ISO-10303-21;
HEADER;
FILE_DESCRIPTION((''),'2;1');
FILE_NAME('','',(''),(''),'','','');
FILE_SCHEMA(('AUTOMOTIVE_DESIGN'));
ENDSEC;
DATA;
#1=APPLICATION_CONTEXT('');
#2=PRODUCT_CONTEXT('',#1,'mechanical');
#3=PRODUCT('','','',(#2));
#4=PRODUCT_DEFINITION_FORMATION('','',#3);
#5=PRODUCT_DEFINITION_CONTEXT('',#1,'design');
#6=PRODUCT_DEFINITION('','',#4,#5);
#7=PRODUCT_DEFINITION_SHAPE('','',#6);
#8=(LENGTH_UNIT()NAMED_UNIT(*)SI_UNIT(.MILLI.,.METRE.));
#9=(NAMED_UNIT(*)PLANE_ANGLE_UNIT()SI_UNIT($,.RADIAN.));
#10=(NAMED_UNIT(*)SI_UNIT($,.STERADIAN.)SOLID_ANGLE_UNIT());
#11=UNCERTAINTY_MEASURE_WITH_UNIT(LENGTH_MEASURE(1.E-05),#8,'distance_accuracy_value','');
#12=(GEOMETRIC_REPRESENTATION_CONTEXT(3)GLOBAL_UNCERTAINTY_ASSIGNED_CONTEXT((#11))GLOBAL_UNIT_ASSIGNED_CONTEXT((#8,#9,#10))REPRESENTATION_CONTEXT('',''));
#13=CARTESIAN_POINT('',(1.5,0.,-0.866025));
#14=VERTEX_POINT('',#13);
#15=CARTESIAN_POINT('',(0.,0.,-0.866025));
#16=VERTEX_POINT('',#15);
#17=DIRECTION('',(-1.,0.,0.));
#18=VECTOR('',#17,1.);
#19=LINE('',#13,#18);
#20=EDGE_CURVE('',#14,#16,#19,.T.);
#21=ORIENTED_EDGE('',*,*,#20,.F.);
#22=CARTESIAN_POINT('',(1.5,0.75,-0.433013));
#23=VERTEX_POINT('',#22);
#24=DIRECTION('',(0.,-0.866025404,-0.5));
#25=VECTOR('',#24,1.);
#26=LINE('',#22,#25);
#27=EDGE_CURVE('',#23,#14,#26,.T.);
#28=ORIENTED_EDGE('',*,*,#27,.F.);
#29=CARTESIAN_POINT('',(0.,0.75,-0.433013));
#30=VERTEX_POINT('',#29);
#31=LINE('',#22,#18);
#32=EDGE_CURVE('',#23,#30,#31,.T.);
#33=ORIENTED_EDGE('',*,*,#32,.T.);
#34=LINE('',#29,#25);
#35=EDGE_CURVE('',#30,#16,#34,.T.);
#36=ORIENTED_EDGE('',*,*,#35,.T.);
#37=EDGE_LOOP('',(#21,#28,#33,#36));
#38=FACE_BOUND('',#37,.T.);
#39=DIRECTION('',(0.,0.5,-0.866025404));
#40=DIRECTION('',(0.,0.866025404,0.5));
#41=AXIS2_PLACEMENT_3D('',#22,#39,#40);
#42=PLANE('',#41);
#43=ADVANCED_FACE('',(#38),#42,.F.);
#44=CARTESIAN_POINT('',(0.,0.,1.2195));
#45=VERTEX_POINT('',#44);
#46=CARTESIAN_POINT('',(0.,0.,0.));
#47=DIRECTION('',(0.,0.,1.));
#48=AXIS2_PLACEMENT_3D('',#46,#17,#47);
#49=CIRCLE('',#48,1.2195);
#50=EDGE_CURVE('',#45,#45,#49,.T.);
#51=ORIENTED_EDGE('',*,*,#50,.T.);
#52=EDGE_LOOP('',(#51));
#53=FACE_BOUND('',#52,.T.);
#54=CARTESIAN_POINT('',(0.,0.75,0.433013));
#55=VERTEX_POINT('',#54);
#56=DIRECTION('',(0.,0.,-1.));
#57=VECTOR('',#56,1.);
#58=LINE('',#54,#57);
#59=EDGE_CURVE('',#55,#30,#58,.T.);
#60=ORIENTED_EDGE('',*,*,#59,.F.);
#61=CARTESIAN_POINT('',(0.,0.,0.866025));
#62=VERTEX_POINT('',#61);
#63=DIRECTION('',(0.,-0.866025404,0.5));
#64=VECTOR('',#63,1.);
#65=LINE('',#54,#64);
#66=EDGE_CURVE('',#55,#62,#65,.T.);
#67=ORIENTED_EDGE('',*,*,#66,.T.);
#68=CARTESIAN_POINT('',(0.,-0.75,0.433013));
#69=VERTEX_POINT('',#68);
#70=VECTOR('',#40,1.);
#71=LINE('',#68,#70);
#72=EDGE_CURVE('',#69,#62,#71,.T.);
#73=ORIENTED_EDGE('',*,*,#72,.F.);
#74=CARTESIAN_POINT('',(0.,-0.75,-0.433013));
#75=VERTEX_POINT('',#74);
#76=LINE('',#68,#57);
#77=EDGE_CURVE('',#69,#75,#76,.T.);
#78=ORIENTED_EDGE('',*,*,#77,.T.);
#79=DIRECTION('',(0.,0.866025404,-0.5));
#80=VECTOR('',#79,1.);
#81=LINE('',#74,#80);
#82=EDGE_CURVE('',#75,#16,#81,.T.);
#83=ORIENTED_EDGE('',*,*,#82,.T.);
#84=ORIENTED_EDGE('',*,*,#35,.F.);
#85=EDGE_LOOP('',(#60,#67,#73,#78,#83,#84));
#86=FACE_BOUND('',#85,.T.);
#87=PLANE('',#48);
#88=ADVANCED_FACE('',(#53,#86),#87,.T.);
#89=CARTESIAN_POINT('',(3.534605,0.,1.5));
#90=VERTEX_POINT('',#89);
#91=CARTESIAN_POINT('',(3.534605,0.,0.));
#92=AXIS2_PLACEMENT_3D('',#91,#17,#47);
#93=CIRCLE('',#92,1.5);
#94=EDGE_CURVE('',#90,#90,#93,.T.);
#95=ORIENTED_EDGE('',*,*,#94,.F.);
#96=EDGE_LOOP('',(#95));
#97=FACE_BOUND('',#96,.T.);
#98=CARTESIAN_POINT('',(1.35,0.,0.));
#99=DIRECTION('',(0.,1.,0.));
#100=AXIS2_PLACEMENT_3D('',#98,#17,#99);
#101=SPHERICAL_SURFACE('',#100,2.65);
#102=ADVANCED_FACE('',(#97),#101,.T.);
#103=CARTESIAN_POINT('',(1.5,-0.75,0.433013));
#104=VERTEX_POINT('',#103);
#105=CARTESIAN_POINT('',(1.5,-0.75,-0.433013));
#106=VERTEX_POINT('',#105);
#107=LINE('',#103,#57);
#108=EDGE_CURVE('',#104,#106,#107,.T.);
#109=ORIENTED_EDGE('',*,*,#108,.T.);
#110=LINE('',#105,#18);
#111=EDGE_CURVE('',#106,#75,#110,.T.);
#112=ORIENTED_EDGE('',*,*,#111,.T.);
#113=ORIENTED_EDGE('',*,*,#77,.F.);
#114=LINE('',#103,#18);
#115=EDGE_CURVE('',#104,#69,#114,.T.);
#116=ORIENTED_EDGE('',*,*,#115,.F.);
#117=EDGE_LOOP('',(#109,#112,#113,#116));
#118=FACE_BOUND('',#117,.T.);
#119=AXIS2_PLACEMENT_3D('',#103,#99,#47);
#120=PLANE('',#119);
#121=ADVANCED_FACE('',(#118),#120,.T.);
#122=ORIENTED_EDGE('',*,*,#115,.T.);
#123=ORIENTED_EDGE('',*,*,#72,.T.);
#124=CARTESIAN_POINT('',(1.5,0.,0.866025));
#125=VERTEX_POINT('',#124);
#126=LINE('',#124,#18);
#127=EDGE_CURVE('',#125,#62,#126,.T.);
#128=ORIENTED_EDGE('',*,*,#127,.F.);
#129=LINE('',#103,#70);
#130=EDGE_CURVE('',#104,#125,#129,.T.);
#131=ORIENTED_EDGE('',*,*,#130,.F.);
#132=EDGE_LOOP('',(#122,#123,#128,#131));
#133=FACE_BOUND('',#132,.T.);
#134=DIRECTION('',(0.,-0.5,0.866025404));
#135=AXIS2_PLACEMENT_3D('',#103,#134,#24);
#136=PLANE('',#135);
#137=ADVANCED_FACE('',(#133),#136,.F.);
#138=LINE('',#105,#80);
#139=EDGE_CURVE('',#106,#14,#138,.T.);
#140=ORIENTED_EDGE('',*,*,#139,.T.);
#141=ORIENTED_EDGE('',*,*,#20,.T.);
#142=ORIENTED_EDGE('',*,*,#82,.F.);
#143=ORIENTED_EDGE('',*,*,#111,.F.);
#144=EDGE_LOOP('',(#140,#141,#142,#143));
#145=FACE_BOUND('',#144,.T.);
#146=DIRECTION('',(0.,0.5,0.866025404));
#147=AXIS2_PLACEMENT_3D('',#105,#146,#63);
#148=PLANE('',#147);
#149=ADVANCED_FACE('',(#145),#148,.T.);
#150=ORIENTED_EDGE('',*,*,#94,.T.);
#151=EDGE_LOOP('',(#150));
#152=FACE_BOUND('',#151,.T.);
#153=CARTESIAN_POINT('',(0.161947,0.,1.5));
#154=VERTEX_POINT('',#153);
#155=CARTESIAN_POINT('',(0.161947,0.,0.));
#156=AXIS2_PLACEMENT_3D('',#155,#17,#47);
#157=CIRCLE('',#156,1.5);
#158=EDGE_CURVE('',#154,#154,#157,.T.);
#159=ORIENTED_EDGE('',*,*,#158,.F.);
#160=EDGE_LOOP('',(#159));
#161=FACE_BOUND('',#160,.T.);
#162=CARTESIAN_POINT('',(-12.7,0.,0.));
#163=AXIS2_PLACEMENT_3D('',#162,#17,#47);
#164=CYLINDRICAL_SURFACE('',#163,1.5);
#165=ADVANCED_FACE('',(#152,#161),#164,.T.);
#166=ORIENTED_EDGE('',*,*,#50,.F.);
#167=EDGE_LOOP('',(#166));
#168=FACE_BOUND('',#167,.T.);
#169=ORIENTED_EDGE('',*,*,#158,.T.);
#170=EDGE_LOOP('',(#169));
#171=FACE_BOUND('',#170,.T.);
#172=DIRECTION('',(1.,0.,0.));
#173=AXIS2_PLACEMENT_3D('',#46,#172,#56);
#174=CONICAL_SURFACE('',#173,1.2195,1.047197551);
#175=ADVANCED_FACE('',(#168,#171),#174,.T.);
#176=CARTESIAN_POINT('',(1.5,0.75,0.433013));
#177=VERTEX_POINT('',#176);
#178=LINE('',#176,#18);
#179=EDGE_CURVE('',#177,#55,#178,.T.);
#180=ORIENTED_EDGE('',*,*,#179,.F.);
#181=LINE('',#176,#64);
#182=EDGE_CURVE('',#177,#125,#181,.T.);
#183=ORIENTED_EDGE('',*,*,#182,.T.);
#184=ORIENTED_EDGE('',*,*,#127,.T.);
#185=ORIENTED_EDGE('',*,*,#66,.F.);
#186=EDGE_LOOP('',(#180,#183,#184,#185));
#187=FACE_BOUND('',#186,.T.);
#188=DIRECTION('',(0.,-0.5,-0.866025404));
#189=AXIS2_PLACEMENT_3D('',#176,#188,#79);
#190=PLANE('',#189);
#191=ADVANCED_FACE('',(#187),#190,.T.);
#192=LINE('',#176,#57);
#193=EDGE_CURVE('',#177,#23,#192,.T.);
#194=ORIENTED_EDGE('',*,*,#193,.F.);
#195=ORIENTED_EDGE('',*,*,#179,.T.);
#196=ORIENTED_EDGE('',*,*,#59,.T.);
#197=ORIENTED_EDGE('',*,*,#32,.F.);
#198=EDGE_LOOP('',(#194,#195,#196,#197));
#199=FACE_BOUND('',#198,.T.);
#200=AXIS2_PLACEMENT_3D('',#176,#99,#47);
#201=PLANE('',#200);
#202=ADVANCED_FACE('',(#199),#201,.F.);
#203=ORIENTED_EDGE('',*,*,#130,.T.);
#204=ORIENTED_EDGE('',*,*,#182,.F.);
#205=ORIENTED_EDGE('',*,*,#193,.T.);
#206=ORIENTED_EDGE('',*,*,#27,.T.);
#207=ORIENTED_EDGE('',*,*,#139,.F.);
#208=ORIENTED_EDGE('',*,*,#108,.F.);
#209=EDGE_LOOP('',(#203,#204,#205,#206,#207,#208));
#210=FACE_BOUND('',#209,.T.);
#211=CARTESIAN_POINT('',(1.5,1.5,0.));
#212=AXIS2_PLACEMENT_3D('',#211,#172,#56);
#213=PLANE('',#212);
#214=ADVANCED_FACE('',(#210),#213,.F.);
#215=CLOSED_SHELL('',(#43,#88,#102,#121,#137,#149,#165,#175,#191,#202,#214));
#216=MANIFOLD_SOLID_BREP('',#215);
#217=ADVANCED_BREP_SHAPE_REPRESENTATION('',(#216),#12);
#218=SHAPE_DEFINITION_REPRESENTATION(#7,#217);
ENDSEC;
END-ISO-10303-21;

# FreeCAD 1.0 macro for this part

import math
import FreeCAD as App
import Part
import Sketcher
Q = App.Units.Quantity


def add_polygon(sketch, points):
    """Adds a closed chain of lines whose ends are joined by coincident constraints."""
    first, n = sketch.GeometryCount, len(points)
    for a, b in zip(points, points[1:] + points[:1]):
        sketch.addGeometry(Part.LineSegment(App.Vector(*a, 0), App.Vector(*b, 0)), False)
    for i in range(n):
        sketch.addConstraint(Sketcher.Constraint("Coincident", first + i, 2, first + (i + 1) % n, 1))

doc = App.newDocument("Part")
body = doc.addObject("PartDesign::Body", "Body")

# Sketch on XY plane
sketch1 = body.newObject("Sketcher::SketchObject", "Sketch")
sketch1.AttachmentSupport = (doc.getObject("XY_Plane"), [""])
sketch1.MapMode = "FlatFace"
sketch1.addGeometry([
    Part.LineSegment(App.Vector(0, 1.22, 0), App.Vector(0, 0, 0)),  # 0
    Part.LineSegment(App.Vector(0, 0, 0), App.Vector(4, 0, 0)),  # 1
    Part.ArcOfCircle(Part.Circle(App.Vector(1.35, 0, 0), App.Vector(0, 0, 1), 2.65), math.radians(0), math.radians(34)),  # 2
    Part.LineSegment(App.Vector(3.53, 1.5, 0), App.Vector(0.16, 1.5, 0)),  # 3
    Part.LineSegment(App.Vector(0.16, 1.5, 0), App.Vector(0, 1.22, 0)),  # 4
], False)
sketch1.addConstraint([
    Sketcher.Constraint("Coincident", 0, 2, 1, 1),
    Sketcher.Constraint("Coincident", 1, 2, 2, 1),
    Sketcher.Constraint("Coincident", 2, 2, 3, 1),
    Sketcher.Constraint("Coincident", 3, 2, 4, 1),
    Sketcher.Constraint("Coincident", 4, 2, 0, 1),
    Sketcher.Constraint("Vertical", 0),
    Sketcher.Constraint("Horizontal", 1),
    Sketcher.Constraint("Horizontal", 3),
    Sketcher.Constraint("Coincident", 0, 2, -1, 1),
    Sketcher.Constraint("PointOnObject", 2, 3, -1),
    Sketcher.Constraint("DistanceX", 1, 1, 1, 2, Q("4 mm")),
    Sketcher.Constraint("Angle", 4, Q("-120 deg")),
    Sketcher.Constraint("Radius", 2, Q("2.65 mm")),
    Sketcher.Constraint("DistanceY", -1, 1, 2, 2, Q("1.5 mm")),
    Sketcher.Constraint("DistanceY", 0, 2, 0, 1, Q("1.2195 mm")),
])
revolution = body.newObject("PartDesign::Revolution", "Revolution")
revolution.Profile = sketch1
revolution.ReferenceAxis = (sketch1, ["H_Axis"])
revolution.Angle = 360

# Sketch on YZ plane
sketch2 = body.newObject("Sketcher::SketchObject", "Sketch001")
sketch2.AttachmentSupport = (doc.getObject("YZ_Plane"), [""])
sketch2.MapMode = "FlatFace"
add_polygon(sketch2, [(0.8, 0.4), (0.8, -0.4), (0, -0.9), (-0.8, -0.4), (-0.8, 0.4), (0, 0.9)])  # lines 0-5
sketch2.addConstraint([
    Sketcher.Constraint("Vertical", 0),
    Sketcher.Constraint("Vertical", 3),
    Sketcher.Constraint("Symmetric", 0, 2, 3, 2, -1, 1),
    Sketcher.Constraint("Symmetric", 1, 2, 4, 2, -1, 1),
    Sketcher.Constraint("PointOnObject", 1, 2, -2),
    Sketcher.Constraint("Parallel", 2, 5),
    Sketcher.Constraint("Horizontal", 0, 2, 2, 2),
    Sketcher.Constraint("Angle", 1, Q("-150 deg")),
    Sketcher.Constraint("DistanceX", 2, 2, 0, 2, Q("1.5 mm")),
    Sketcher.Constraint("DistanceY", 0, 2, 0, 1, Q("0.866025 mm")),
])
pocket1 = body.newObject("PartDesign::Pocket", "Pocket")
pocket1.Profile = sketch2
pocket1.Length = 1.5
pocket1.Reversed = True

doc.recompute()
